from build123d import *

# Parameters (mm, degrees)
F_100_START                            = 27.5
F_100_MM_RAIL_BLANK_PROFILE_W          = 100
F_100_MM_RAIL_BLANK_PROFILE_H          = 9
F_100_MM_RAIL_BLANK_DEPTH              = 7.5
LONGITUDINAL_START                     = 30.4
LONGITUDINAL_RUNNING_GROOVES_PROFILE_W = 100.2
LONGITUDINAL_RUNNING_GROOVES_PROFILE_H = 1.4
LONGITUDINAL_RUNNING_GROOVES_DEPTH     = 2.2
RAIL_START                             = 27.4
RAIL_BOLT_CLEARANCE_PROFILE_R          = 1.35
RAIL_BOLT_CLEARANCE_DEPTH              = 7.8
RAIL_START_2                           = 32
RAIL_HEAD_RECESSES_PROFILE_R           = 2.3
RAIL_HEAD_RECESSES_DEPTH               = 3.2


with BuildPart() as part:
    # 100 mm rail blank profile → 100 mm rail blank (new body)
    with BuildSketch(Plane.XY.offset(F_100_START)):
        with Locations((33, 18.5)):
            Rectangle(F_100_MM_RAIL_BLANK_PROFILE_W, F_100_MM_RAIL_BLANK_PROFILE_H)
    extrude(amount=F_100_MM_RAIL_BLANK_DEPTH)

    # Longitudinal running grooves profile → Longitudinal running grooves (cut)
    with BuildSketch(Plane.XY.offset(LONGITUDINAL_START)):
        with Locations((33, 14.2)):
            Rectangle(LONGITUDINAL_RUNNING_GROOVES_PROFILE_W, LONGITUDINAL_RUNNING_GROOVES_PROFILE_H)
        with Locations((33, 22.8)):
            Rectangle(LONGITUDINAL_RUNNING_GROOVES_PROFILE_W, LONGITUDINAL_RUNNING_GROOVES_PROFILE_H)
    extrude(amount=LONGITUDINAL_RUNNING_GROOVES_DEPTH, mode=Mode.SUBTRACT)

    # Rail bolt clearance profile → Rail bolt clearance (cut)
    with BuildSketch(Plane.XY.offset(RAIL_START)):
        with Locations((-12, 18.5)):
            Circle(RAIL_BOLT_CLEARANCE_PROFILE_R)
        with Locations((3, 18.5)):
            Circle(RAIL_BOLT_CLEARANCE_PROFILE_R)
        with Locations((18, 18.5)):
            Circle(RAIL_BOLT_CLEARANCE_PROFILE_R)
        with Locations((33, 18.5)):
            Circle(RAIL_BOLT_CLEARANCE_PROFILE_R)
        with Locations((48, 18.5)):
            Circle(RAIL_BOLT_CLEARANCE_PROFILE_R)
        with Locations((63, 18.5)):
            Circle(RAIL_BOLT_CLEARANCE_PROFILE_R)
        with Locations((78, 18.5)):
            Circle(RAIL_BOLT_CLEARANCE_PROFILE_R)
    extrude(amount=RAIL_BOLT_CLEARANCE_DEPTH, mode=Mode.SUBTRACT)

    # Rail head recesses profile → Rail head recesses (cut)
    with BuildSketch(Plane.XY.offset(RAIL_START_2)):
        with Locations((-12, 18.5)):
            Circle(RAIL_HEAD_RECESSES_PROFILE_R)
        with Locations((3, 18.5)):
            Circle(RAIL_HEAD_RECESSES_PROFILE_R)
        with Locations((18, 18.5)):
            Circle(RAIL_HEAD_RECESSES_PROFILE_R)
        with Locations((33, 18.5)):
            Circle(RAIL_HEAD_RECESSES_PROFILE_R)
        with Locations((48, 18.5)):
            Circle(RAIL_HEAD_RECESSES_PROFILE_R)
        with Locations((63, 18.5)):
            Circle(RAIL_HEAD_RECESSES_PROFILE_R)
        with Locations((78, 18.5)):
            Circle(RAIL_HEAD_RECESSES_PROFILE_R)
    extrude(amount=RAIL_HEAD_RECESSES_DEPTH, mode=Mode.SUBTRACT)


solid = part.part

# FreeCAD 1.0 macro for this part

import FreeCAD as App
import Part
import Sketcher


def add_polygon(sketch, points):
    """Adds a closed chain of lines whose ends are joined by coincident constraints."""
    first, n = sketch.GeometryCount, len(points)
    for a, b in zip(points, points[1:] + points[:1]):
        sketch.addGeometry(Part.LineSegment(App.Vector(*a, 0), App.Vector(*b, 0)), False)
    for i in range(n):
        sketch.addConstraint(Sketcher.Constraint("Coincident", first + i, 2, first + (i + 1) % n, 1))

doc = App.newDocument("Part")
body = doc.addObject("PartDesign::Body", "Body")

# Sketch on XY plane
sketch1 = body.newObject("Sketcher::SketchObject", "Sketch")
sketch1.AttachmentSupport = (doc.getObject("XY_Plane"), [""])
sketch1.MapMode = "FlatFace"
sketch1.AttachmentOffset = App.Placement(App.Vector(0, 0, 27.5), App.Rotation())
add_polygon(sketch1, [(-17, 23), (-17, 14), (83, 14), (83, 23)])  # lines 0-3
sketch1.addConstraint([
    Sketcher.Constraint("Vertical", 0),
    Sketcher.Constraint("Horizontal", 1),
    Sketcher.Constraint("Vertical", 2),
    Sketcher.Constraint("Horizontal", 3),
    Sketcher.Constraint("DistanceX", 1, 1, 1, 2, 100.0),
    Sketcher.Constraint("DistanceY", 0, 2, 0, 1, 9.0),
    Sketcher.Constraint("DistanceX", 0, 2, -1, 1, 17.0),
    Sketcher.Constraint("DistanceY", -1, 1, 0, 2, 14.0),
])
pad1 = body.newObject("PartDesign::Pad", "Pad")
pad1.Profile = sketch1
pad1.Length = 7.5

# Sketch on XY plane
sketch2 = body.newObject("Sketcher::SketchObject", "Sketch001")
sketch2.AttachmentSupport = (doc.getObject("XY_Plane"), [""])
sketch2.MapMode = "FlatFace"
sketch2.AttachmentOffset = App.Placement(App.Vector(0, 0, 30.4), App.Rotation())
add_polygon(sketch2, [(-17.1, 14.9), (-17.1, 13.5), (83.1, 13.5), (83.1, 14.9)])  # lines 0-3
add_polygon(sketch2, [(-17.1, 23.5), (-17.1, 22.1), (83.1, 22.1), (83.1, 23.5)])  # lines 4-7
sketch2.addConstraint([
    Sketcher.Constraint("Vertical", 0),
    Sketcher.Constraint("Horizontal", 1),
    Sketcher.Constraint("Vertical", 2),
    Sketcher.Constraint("Horizontal", 3),
    Sketcher.Constraint("Vertical", 4),
    Sketcher.Constraint("Horizontal", 5),
    Sketcher.Constraint("Vertical", 6),
    Sketcher.Constraint("Horizontal", 7),
    Sketcher.Constraint("Vertical", 3, 2, 4, 2),
    Sketcher.Constraint("Vertical", 2, 2, 5, 2),
    Sketcher.Constraint("Equal", 2, 4),
    Sketcher.Constraint("DistanceX", 1, 1, 1, 2, 100.2),
    Sketcher.Constraint("DistanceY", 0, 2, 0, 1, 1.4),
    Sketcher.Constraint("DistanceY", 1, 2, 6, 2, 10.0),
    Sketcher.Constraint("DistanceX", 0, 2, -1, 1, 17.1),
    Sketcher.Constraint("DistanceY", -1, 1, 0, 2, 13.5),
])
pocket1 = body.newObject("PartDesign::Pocket", "Pocket")
pocket1.Profile = sketch2
pocket1.Length = 2.2
pocket1.Reversed = True

# Sketch on XY plane
sketch3 = body.newObject("Sketcher::SketchObject", "Sketch002")
sketch3.AttachmentSupport = (doc.getObject("XY_Plane"), [""])
sketch3.MapMode = "FlatFace"
sketch3.AttachmentOffset = App.Placement(App.Vector(0, 0, 27.4), App.Rotation())
sketch3.addGeometry([
    Part.Circle(App.Vector(-12, 18.5, 0), App.Vector(0, 0, 1), 1.4),  # 0
    Part.Circle(App.Vector(3, 18.5, 0), App.Vector(0, 0, 1), 1.4),  # 1
    Part.Circle(App.Vector(18, 18.5, 0), App.Vector(0, 0, 1), 1.4),  # 2
    Part.Circle(App.Vector(33, 18.5, 0), App.Vector(0, 0, 1), 1.4),  # 3
    Part.Circle(App.Vector(48, 18.5, 0), App.Vector(0, 0, 1), 1.4),  # 4
    Part.Circle(App.Vector(63, 18.5, 0), App.Vector(0, 0, 1), 1.4),  # 5
    Part.Circle(App.Vector(78, 18.5, 0), App.Vector(0, 0, 1), 1.4),  # 6
], False)
sketch3.addConstraint([
    Sketcher.Constraint("Equal", 0, 1),
    Sketcher.Constraint("Equal", 1, 2),
    Sketcher.Constraint("Equal", 2, 3),
    Sketcher.Constraint("Equal", 3, 4),
    Sketcher.Constraint("Equal", 4, 5),
    Sketcher.Constraint("Equal", 5, 6),
    Sketcher.Constraint("Horizontal", 0, 3, 1, 3),
    Sketcher.Constraint("Horizontal", 1, 3, 2, 3),
    Sketcher.Constraint("Horizontal", 2, 3, 3, 3),
    Sketcher.Constraint("Horizontal", 3, 3, 4, 3),
    Sketcher.Constraint("Horizontal", 4, 3, 5, 3),
    Sketcher.Constraint("Horizontal", 5, 3, 6, 3),
    Sketcher.Constraint("Diameter", 0, 2.7),
    Sketcher.Constraint("DistanceX", 0, 3, -1, 1, 12.0),
    Sketcher.Constraint("DistanceX", -1, 1, 1, 3, 3.0),
    Sketcher.Constraint("DistanceX", -1, 1, 2, 3, 18.0),
    Sketcher.Constraint("DistanceX", -1, 1, 3, 3, 33.0),
    Sketcher.Constraint("DistanceX", -1, 1, 4, 3, 48.0),
    Sketcher.Constraint("DistanceX", -1, 1, 5, 3, 63.0),
    Sketcher.Constraint("DistanceX", -1, 1, 6, 3, 78.0),
    Sketcher.Constraint("DistanceY", -1, 1, 0, 3, 18.5),
])
pocket2 = body.newObject("PartDesign::Pocket", "Pocket001")
pocket2.Profile = sketch3
pocket2.Length = 7.8
pocket2.Reversed = True

# Sketch on XY plane
sketch4 = body.newObject("Sketcher::SketchObject", "Sketch003")
sketch4.AttachmentSupport = (doc.getObject("XY_Plane"), [""])
sketch4.MapMode = "FlatFace"
sketch4.AttachmentOffset = App.Placement(App.Vector(0, 0, 32), App.Rotation())
sketch4.addGeometry([
    Part.Circle(App.Vector(-12, 18.5, 0), App.Vector(0, 0, 1), 2.3),  # 0
    Part.Circle(App.Vector(3, 18.5, 0), App.Vector(0, 0, 1), 2.3),  # 1
    Part.Circle(App.Vector(18, 18.5, 0), App.Vector(0, 0, 1), 2.3),  # 2
    Part.Circle(App.Vector(33, 18.5, 0), App.Vector(0, 0, 1), 2.3),  # 3
    Part.Circle(App.Vector(48, 18.5, 0), App.Vector(0, 0, 1), 2.3),  # 4
    Part.Circle(App.Vector(63, 18.5, 0), App.Vector(0, 0, 1), 2.3),  # 5
    Part.Circle(App.Vector(78, 18.5, 0), App.Vector(0, 0, 1), 2.3),  # 6
], False)
sketch4.addConstraint([
    Sketcher.Constraint("Equal", 0, 1),
    Sketcher.Constraint("Equal", 1, 2),
    Sketcher.Constraint("Equal", 2, 3),
    Sketcher.Constraint("Equal", 3, 4),
    Sketcher.Constraint("Equal", 4, 5),
    Sketcher.Constraint("Equal", 5, 6),
    Sketcher.Constraint("Horizontal", 0, 3, 1, 3),
    Sketcher.Constraint("Horizontal", 1, 3, 2, 3),
    Sketcher.Constraint("Horizontal", 2, 3, 3, 3),
    Sketcher.Constraint("Horizontal", 3, 3, 4, 3),
    Sketcher.Constraint("Horizontal", 4, 3, 5, 3),
    Sketcher.Constraint("Horizontal", 5, 3, 6, 3),
    Sketcher.Constraint("Diameter", 0, 4.6),
    Sketcher.Constraint("DistanceX", 0, 3, -1, 1, 12.0),
    Sketcher.Constraint("DistanceX", -1, 1, 1, 3, 3.0),
    Sketcher.Constraint("DistanceX", -1, 1, 2, 3, 18.0),
    Sketcher.Constraint("DistanceX", -1, 1, 3, 3, 33.0),
    Sketcher.Constraint("DistanceX", -1, 1, 4, 3, 48.0),
    Sketcher.Constraint("DistanceX", -1, 1, 5, 3, 63.0),
    Sketcher.Constraint("DistanceX", -1, 1, 6, 3, 78.0),
    Sketcher.Constraint("DistanceY", -1, 1, 0, 3, 18.5),
])
pocket3 = body.newObject("PartDesign::Pocket", "Pocket002")
pocket3.Profile = sketch4
pocket3.Length = 3.2
pocket3.Reversed = True

doc.recompute()
